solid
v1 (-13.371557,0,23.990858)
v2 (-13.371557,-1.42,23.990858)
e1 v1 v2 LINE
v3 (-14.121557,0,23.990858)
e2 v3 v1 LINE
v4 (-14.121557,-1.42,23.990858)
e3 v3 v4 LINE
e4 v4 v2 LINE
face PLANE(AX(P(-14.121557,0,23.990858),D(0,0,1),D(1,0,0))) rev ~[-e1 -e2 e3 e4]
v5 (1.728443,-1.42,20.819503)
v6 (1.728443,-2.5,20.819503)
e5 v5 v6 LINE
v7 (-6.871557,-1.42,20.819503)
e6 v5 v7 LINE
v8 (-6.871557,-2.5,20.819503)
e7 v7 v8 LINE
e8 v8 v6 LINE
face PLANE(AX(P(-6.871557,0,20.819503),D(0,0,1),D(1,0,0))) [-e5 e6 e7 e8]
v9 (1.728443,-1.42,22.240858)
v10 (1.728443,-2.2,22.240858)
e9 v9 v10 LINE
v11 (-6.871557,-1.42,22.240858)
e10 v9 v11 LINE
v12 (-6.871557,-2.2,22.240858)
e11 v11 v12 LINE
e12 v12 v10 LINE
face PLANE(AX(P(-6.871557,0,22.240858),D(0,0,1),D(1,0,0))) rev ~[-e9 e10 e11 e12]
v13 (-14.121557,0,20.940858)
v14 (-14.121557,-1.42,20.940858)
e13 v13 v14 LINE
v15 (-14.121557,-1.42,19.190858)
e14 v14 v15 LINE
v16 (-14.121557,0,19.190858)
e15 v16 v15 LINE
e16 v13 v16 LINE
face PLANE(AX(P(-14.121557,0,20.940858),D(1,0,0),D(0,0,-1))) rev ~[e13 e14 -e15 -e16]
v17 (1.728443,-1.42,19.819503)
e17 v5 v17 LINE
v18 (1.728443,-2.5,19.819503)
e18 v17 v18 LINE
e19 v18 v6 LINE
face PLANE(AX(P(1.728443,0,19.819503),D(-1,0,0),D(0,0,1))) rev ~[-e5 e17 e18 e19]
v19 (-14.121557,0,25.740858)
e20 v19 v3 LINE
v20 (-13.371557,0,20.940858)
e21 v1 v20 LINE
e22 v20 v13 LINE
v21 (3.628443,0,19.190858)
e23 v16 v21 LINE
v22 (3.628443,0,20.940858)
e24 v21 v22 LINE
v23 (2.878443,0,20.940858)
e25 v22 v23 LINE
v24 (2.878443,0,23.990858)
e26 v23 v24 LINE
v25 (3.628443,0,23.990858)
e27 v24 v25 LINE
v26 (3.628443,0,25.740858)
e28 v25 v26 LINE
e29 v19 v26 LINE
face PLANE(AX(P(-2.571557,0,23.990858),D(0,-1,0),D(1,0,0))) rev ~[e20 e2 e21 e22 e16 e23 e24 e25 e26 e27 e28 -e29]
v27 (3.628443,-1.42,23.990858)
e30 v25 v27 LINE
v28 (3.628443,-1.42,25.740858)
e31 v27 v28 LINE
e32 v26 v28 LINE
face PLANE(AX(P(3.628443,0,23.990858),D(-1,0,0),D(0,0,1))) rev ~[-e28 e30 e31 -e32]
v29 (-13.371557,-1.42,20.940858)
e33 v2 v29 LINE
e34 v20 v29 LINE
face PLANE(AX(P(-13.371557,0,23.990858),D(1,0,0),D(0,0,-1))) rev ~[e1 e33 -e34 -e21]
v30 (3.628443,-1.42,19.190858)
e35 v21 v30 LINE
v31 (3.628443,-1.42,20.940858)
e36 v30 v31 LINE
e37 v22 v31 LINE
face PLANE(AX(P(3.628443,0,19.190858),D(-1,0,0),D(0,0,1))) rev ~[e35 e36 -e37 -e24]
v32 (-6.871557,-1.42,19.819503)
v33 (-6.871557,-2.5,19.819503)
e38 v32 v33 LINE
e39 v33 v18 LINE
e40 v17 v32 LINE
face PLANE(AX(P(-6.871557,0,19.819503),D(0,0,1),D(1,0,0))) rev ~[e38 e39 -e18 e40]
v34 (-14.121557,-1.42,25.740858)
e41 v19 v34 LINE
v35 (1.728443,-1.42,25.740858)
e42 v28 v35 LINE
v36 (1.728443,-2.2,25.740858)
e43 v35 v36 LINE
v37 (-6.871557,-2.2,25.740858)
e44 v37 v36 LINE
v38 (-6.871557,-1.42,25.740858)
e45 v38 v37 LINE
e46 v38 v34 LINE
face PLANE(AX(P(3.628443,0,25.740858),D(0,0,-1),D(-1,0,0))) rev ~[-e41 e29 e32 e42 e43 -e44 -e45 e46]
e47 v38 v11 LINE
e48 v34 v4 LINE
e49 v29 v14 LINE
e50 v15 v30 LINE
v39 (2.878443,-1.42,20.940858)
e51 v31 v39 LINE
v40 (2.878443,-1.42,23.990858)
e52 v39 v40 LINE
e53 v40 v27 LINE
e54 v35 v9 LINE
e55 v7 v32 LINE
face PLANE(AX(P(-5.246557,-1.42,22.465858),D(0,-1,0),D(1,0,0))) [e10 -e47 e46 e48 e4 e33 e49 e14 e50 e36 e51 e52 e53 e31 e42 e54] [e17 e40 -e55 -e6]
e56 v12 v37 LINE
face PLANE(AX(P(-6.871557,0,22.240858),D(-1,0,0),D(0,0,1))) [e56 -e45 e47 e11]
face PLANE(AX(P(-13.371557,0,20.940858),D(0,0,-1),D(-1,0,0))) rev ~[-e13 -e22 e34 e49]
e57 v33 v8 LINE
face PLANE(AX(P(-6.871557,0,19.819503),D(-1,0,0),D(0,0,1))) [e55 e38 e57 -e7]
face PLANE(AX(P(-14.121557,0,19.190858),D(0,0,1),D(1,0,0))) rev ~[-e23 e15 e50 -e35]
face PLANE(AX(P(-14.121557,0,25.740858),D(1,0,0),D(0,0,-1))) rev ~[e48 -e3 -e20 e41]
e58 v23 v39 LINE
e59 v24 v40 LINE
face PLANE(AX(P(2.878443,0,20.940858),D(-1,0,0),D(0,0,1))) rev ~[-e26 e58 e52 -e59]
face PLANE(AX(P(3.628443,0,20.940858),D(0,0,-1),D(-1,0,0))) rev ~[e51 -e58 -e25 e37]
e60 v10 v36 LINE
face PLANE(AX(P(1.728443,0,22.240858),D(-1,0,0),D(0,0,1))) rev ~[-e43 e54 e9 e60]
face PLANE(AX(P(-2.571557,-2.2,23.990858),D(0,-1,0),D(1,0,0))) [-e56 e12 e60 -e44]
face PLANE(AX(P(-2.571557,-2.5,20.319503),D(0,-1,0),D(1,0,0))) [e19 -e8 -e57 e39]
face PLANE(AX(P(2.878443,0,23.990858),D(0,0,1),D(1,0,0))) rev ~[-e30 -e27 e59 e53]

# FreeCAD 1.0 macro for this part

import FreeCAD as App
import Part
import Sketcher

V = App.Vector
Q = App.Units.Quantity


def add_polygon(sketch, points):
    """Adds a closed chain of lines whose ends are joined by coincident constraints."""
    first, n = sketch.GeometryCount, len(points)
    for a, b in zip(points, points[1:] + points[:1]):
        sketch.addGeometry(Part.LineSegment(App.Vector(*a, 0), App.Vector(*b, 0)), False)
    for i in range(n):
        sketch.addConstraint(Sketcher.Constraint("Coincident", first + i, 2, first + (i + 1) % n, 1))

doc = App.newDocument("Part")
body = doc.addObject("PartDesign::Body", "Body")

# Sketch on XZ plane
sketch1 = body.newObject("Sketcher::SketchObject", "Sketch")
sketch1.AttachmentSupport = (doc.getObject("XZ_Plane"), [""])
sketch1.MapMode = "FlatFace"
add_polygon(sketch1, [(3.628443, 25.740858), (-14.121557, 25.740858), (-14.121557, 23.990858), (-13.371557, 23.990858), (-13.371557, 20.940858), (-14.121557, 20.940858), (-14.121557, 19.190858), (3.628443, 19.190858), (3.628443, 20.940858), (2.878443, 20.940858), (2.878443, 23.990858), (3.628443, 23.990858)])  # lines 0-11
sketch1.addConstraint(Sketcher.Constraint("Horizontal", 0))
sketch1.addConstraint(Sketcher.Constraint("Vertical", 1))
sketch1.addConstraint(Sketcher.Constraint("Horizontal", 2))
sketch1.addConstraint(Sketcher.Constraint("Vertical", 3))
sketch1.addConstraint(Sketcher.Constraint("Horizontal", 4))
sketch1.addConstraint(Sketcher.Constraint("Vertical", 5))
sketch1.addConstraint(Sketcher.Constraint("Horizontal", 6))
sketch1.addConstraint(Sketcher.Constraint("Vertical", 7))
sketch1.addConstraint(Sketcher.Constraint("Horizontal", 8))
sketch1.addConstraint(Sketcher.Constraint("Vertical", 9))
sketch1.addConstraint(Sketcher.Constraint("Horizontal", 10))
sketch1.addConstraint(Sketcher.Constraint("Vertical", 11))
sketch1.addConstraint(Sketcher.Constraint("Horizontal", 4, 2, 7, 2))
sketch1.addConstraint(Sketcher.Constraint("Horizontal", 2, 2, 9, 2))
sketch1.addConstraint(Sketcher.Constraint("Vertical", 1, 2, 4, 2))
sketch1.addConstraint(Sketcher.Constraint("Vertical", 7, 2, 10, 2))
sketch1.addConstraint(Sketcher.Constraint("Equal", 4, 8))
sketch1.addConstraint(Sketcher.Constraint("Equal", 1, 5))
sketch1.addConstraint(Sketcher.Constraint("DistanceX", 3, 2, 6, 2, Q("17 mm")))
sketch1.addConstraint(Sketcher.Constraint("DistanceX", 0, 2, 0, 1, Q("17.75 mm")))
sketch1.addConstraint(Sketcher.Constraint("DistanceY", 1, 2, 1, 1, Q("1.75 mm")))
sketch1.addConstraint(Sketcher.Constraint("DistanceY", 3, 2, 3, 1, Q("3.05 mm")))
sketch1.addConstraint(Sketcher.Constraint("DistanceX", 0, 2, -1, 1, Q("14.121557 mm")))
sketch1.addConstraint(Sketcher.Constraint("DistanceY", -1, 1, 0, 2, Q("25.740858 mm")))
pad1 = body.newObject("PartDesign::Pad", "Pad")
pad1.Profile = sketch1
pad1.Length = 1.42

# Sketch on XZ plane
sketch2 = body.newObject("Sketcher::SketchObject", "Sketch001")
sketch2.AttachmentSupport = (doc.getObject("XZ_Plane"), [""])
sketch2.MapMode = "FlatFace"
add_polygon(sketch2, [(-6.871557, 20.819503), (-6.871557, 19.819503), (1.728443, 19.819503), (1.728443, 20.819503)])  # lines 0-3
sketch2.addConstraint(Sketcher.Constraint("Vertical", 0))
sketch2.addConstraint(Sketcher.Constraint("Horizontal", 1))
sketch2.addConstraint(Sketcher.Constraint("Vertical", 2))
sketch2.addConstraint(Sketcher.Constraint("Horizontal", 3))
sketch2.addConstraint(Sketcher.Constraint("DistanceY", 0, 2, 0, 1, Q("1 mm")))
sketch2.addConstraint(Sketcher.Constraint("DistanceX", 1, 1, 1, 2, Q("8.6 mm")))
sketch2.addConstraint(Sketcher.Constraint("DistanceX", 0, 2, -1, 1, Q("6.871557 mm")))
sketch2.addConstraint(Sketcher.Constraint("DistanceY", -1, 1, 0, 2, Q("19.819503 mm")))
pad2 = body.newObject("PartDesign::Pad", "Pad001")
pad2.Profile = sketch2
pad2.Length = 2.5

# Sketch on XZ plane
sketch3 = body.newObject("Sketcher::SketchObject", "Sketch002")
sketch3.AttachmentSupport = (doc.getObject("XZ_Plane"), [""])
sketch3.MapMode = "FlatFace"
add_polygon(sketch3, [(-6.871557, 25.740858), (-6.871557, 22.240858), (1.728443, 22.240858), (1.728443, 25.740858)])  # lines 0-3
sketch3.addConstraint(Sketcher.Constraint("Vertical", 0))
sketch3.addConstraint(Sketcher.Constraint("Horizontal", 1))
sketch3.addConstraint(Sketcher.Constraint("Vertical", 2))
sketch3.addConstraint(Sketcher.Constraint("Horizontal", 3))
sketch3.addConstraint(Sketcher.Constraint("DistanceX", 1, 1, 1, 2, Q("8.6 mm")))
sketch3.addConstraint(Sketcher.Constraint("DistanceY", 0, 2, 0, 1, Q("3.5 mm")))
sketch3.addConstraint(Sketcher.Constraint("DistanceX", 0, 2, -1, 1, Q("6.871557 mm")))
sketch3.addConstraint(Sketcher.Constraint("DistanceY", -1, 1, 0, 2, Q("22.240858 mm")))
pad3 = body.newObject("PartDesign::Pad", "Pad002")
pad3.Profile = sketch3
pad3.Length = 2.2

doc.recompute()
